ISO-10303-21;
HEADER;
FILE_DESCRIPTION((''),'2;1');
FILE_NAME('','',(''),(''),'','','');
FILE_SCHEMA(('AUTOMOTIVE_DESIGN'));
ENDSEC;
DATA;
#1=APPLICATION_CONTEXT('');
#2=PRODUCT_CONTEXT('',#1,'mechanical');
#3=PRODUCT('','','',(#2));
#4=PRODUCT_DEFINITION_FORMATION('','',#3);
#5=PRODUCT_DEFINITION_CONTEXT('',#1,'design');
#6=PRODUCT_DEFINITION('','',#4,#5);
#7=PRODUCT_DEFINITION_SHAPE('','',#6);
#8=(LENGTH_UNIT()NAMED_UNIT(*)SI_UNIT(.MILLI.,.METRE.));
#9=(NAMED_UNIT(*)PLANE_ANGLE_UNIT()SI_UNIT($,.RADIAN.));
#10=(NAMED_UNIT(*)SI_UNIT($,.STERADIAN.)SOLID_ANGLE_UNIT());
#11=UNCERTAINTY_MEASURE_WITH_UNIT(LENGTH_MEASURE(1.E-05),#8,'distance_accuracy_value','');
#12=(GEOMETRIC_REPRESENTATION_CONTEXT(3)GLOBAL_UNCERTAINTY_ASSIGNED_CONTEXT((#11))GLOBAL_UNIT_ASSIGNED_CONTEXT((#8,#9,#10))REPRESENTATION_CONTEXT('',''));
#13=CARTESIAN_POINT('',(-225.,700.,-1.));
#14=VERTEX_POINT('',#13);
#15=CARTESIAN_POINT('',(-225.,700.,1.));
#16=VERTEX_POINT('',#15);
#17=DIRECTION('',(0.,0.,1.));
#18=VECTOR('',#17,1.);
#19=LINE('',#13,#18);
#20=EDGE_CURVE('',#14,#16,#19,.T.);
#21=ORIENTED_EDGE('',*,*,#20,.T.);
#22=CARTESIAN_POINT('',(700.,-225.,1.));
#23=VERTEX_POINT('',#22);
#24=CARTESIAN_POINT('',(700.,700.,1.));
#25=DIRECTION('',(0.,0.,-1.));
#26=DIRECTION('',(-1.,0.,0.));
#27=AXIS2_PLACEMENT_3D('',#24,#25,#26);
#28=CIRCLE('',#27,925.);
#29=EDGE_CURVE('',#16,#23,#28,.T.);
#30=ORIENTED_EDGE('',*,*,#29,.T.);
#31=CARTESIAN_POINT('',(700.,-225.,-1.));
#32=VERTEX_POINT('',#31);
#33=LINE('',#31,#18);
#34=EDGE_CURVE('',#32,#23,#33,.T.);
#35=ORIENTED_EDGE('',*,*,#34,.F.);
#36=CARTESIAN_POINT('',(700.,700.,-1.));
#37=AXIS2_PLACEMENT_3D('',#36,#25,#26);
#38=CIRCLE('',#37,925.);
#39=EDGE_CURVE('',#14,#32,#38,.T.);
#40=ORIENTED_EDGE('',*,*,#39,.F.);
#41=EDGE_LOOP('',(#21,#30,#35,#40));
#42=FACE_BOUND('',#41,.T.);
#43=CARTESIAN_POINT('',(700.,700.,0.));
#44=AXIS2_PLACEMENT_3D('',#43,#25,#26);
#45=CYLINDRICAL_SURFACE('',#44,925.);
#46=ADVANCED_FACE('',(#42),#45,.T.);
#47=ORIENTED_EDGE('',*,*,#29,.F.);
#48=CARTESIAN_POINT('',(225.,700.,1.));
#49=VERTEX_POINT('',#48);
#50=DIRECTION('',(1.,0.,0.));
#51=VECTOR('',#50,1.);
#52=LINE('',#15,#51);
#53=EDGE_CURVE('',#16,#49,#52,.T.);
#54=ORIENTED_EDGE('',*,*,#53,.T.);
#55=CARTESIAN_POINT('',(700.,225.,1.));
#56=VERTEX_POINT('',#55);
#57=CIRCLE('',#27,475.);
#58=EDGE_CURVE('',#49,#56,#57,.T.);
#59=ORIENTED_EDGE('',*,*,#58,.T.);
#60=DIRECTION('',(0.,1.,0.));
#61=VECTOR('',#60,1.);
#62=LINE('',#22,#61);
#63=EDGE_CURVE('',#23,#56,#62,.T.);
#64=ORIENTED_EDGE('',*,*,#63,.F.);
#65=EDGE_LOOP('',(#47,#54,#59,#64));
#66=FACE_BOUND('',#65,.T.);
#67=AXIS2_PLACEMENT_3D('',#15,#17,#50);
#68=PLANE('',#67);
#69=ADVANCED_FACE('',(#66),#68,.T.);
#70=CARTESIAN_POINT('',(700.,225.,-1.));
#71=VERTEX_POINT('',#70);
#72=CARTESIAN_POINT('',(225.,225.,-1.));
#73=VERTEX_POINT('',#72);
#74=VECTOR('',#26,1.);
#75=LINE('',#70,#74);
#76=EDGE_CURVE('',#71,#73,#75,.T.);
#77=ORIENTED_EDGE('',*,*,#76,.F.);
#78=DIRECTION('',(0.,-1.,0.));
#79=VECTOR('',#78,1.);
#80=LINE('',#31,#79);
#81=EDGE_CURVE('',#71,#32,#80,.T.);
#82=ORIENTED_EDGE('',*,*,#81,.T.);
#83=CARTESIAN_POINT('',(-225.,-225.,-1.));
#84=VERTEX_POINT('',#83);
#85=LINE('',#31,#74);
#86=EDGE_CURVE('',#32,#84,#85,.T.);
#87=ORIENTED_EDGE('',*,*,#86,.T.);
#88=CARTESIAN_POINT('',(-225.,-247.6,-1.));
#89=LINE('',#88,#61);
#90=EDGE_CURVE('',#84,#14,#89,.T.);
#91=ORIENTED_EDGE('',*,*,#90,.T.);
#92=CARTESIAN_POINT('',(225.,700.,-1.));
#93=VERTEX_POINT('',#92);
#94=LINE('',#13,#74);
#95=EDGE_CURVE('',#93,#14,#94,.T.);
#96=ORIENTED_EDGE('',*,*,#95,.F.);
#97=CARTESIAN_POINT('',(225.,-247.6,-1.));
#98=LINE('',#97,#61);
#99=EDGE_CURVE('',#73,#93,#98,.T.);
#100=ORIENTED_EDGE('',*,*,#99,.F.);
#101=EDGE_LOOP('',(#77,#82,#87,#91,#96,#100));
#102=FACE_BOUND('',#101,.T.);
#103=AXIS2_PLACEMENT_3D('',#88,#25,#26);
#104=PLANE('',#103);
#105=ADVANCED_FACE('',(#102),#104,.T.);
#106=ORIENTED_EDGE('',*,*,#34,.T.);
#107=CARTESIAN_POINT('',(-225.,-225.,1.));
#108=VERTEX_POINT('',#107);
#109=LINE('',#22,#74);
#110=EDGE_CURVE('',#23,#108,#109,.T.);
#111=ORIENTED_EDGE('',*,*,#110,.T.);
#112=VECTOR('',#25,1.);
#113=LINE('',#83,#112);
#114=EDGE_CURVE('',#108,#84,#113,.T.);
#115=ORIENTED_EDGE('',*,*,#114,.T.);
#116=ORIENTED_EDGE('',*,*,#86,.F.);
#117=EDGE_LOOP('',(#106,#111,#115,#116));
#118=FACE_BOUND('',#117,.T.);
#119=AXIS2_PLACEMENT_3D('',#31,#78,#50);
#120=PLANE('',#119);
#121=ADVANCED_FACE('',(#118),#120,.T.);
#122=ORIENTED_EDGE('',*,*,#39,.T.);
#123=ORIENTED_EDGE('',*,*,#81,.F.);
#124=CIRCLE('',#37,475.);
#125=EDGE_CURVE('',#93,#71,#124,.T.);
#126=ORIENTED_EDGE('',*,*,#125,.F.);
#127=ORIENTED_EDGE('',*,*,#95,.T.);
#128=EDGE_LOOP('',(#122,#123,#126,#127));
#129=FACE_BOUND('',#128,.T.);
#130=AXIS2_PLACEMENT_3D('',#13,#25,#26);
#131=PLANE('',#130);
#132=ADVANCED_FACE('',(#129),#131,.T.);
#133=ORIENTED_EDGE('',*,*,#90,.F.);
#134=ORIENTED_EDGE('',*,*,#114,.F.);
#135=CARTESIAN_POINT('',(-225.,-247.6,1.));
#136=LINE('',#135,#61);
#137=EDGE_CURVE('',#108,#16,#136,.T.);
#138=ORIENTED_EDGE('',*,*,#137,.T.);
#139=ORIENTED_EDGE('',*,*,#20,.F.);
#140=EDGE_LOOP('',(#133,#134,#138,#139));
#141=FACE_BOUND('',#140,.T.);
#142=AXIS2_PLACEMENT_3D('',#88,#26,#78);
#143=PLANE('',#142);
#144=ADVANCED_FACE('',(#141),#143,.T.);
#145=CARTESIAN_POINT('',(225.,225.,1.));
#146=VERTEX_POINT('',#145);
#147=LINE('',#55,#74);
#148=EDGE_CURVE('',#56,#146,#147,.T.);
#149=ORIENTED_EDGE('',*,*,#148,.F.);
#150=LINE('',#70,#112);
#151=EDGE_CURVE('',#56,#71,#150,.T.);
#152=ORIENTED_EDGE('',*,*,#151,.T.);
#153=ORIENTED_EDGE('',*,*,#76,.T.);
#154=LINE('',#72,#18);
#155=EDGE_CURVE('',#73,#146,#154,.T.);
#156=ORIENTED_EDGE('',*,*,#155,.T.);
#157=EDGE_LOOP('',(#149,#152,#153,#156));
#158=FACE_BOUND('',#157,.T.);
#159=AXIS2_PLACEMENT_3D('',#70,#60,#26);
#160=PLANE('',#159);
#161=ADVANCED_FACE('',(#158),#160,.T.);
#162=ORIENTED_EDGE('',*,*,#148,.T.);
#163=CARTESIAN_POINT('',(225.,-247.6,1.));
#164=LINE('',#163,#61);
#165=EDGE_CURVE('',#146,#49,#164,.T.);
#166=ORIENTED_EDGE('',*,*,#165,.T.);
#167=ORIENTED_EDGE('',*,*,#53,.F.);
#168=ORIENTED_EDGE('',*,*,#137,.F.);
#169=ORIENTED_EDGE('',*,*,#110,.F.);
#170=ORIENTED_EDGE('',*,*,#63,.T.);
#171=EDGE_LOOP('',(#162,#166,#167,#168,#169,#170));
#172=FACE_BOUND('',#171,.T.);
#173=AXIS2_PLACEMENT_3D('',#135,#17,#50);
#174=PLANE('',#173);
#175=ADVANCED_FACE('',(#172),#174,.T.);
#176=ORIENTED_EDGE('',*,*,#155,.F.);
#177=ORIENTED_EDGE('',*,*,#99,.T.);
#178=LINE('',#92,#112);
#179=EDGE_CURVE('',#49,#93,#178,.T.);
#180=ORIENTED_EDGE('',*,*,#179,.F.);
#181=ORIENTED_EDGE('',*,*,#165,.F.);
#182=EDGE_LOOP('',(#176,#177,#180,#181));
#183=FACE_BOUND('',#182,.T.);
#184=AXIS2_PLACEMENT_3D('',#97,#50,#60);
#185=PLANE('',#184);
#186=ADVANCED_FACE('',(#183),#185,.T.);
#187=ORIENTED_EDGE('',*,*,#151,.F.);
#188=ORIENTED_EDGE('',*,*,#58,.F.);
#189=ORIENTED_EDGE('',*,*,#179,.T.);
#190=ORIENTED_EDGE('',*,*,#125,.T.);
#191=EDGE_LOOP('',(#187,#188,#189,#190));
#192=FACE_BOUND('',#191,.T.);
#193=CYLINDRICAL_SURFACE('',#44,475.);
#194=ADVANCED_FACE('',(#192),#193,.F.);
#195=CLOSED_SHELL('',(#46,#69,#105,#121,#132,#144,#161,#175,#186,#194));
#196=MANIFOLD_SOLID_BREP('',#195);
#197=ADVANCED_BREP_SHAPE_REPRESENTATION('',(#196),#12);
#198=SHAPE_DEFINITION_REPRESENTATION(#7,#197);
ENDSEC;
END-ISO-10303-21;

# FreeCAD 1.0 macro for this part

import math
import FreeCAD as App
import Part
import Sketcher
Q = App.Units.Quantity


def add_polygon(sketch, points):
    """Adds a closed chain of lines whose ends are joined by coincident constraints."""
    first, n = sketch.GeometryCount, len(points)
    for a, b in zip(points, points[1:] + points[:1]):
        sketch.addGeometry(Part.LineSegment(App.Vector(*a, 0), App.Vector(*b, 0)), False)
    for i in range(n):
        sketch.addConstraint(Sketcher.Constraint("Coincident", first + i, 2, first + (i + 1) % n, 1))

doc = App.newDocument("Part")
body = doc.addObject("PartDesign::Body", "Body")

# Sketch on XZ plane
sketch1 = body.newObject("Sketcher::SketchObject", "Sketch")
sketch1.AttachmentSupport = (doc.getObject("XZ_Plane"), [""])
sketch1.MapMode = "FlatFace"
add_polygon(sketch1, [(-225, -1), (-225, 1), (225, 1), (225, -1)])  # lines 0-3
sketch1.addConstraint([
    Sketcher.Constraint("Vertical", 0),
    Sketcher.Constraint("Horizontal", 1),
    Sketcher.Constraint("Vertical", 2),
    Sketcher.Constraint("Horizontal", 3),
    Sketcher.Constraint("Symmetric", 0, 2, 2, 2, -1, 1),
    Sketcher.Constraint("DistanceX", 1, 1, 1, 2, Q("450 mm")),
    Sketcher.Constraint("DistanceY", 0, 1, 0, 2, Q("2 mm")),
])

# Sketch on XY plane
sketch2 = body.newObject("Sketcher::SketchObject", "Sketch001")
sketch2.AttachmentSupport = (doc.getObject("XY_Plane"), [""])
sketch2.MapMode = "FlatFace"
sketch2.addGeometry([
    Part.LineSegment(App.Vector(0, 0, 0), App.Vector(0, 700, 0)),
    Part.ArcOfCircle(Part.Circle(App.Vector(700, 700, 0), App.Vector(0, 0, 1), 700), math.radians(-90), math.radians(180)),
    Part.LineSegment(App.Vector(700, 0, 0), App.Vector(0, 0, 0)),
], False)
sketch2.addConstraint([
    Sketcher.Constraint("Tangent", 0, 2, 1, 2),
    Sketcher.Constraint("Tangent", 1, 1, 2, 1),
    Sketcher.Constraint("Coincident", 2, 2, 0, 1),
    Sketcher.Constraint("Vertical", 0),
    Sketcher.Constraint("Horizontal", 2),
    Sketcher.Constraint("Coincident", 2, 2, -1, 1),
    Sketcher.Constraint("Radius", 1, Q("700 mm")),
])
doc.recompute()

additivepipe = body.newObject("PartDesign::AdditivePipe", "AdditivePipe")
additivepipe.Profile = sketch1
additivepipe.Spine = (sketch2, ["Edge1", "Edge2", "Edge3"])
additivepipe.Transition = "Right corner"

doc.recompute()
